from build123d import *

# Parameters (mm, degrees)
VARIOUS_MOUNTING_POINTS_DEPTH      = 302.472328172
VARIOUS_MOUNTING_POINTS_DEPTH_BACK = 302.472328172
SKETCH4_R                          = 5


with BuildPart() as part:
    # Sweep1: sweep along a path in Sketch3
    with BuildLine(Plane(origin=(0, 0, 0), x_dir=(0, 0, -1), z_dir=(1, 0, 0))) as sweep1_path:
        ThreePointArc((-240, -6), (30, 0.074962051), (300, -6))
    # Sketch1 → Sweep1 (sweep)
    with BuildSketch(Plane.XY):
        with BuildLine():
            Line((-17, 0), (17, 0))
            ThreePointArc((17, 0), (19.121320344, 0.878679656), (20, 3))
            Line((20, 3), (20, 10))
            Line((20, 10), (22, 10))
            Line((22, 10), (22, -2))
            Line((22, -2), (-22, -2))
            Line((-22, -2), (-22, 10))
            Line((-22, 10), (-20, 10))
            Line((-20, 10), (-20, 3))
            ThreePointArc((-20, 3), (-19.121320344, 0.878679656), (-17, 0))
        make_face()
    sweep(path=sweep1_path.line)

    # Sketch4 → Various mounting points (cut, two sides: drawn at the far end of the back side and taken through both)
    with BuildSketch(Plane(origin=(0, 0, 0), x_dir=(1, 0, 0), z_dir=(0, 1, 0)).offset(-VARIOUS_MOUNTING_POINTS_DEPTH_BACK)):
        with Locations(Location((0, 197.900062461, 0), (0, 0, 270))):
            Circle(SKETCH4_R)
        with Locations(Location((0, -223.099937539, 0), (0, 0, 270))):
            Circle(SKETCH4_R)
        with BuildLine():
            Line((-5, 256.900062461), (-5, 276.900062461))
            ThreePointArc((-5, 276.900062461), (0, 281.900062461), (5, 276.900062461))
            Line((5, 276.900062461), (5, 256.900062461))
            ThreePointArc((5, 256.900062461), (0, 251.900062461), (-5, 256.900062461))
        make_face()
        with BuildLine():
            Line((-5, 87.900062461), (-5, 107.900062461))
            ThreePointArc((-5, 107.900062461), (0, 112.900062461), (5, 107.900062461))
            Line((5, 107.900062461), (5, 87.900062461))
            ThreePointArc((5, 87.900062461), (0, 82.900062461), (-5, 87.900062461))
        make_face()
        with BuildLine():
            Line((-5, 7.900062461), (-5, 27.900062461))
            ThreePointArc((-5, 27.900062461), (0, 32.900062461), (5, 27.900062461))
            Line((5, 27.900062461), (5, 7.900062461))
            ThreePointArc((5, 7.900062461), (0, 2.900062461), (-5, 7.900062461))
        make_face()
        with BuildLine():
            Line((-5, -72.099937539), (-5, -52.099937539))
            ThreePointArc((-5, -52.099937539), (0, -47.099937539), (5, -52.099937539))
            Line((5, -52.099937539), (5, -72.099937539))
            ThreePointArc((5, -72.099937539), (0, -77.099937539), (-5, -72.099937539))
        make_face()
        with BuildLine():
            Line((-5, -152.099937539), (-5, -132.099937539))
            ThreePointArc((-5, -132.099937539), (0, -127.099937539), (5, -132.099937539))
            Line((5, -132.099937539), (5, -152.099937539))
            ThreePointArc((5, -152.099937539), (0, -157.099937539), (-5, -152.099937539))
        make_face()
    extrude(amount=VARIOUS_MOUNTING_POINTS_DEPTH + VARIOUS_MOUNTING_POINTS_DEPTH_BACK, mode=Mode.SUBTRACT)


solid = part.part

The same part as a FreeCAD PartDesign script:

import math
import FreeCAD as App
import Part
import Sketcher

doc = App.newDocument("Part")
body = doc.addObject("PartDesign::Body", "Body")

# Sketch on XY plane
sketch1 = body.newObject("Sketcher::SketchObject", "Sketch")
sketch1.AttachmentSupport = (doc.getObject("XY_Plane"), [""])
sketch1.MapMode = "FlatFace"
sketch1.addGeometry(Part.LineSegment(App.Vector(17, 0, 0), App.Vector(-17, 0, 0)), False)
sketch1.addGeometry(Part.ArcOfCircle(Part.Circle(App.Vector(-17, 3, 0), App.Vector(0, 0, 1), 3), math.radians(180), math.radians(270)), False)
sketch1.addGeometry(Part.LineSegment(App.Vector(-20, 3, 0), App.Vector(-20, 10, 0)), False)
sketch1.addGeometry(Part.LineSegment(App.Vector(-20, 10, 0), App.Vector(-22, 10, 0)), False)
sketch1.addGeometry(Part.LineSegment(App.Vector(-22, 10, 0), App.Vector(-22, -2, 0)), False)
sketch1.addGeometry(Part.LineSegment(App.Vector(-22, -2, 0), App.Vector(22, -2, 0)), False)
sketch1.addGeometry(Part.LineSegment(App.Vector(22, -2, 0), App.Vector(22, 10, 0)), False)
sketch1.addGeometry(Part.LineSegment(App.Vector(22, 10, 0), App.Vector(20, 10, 0)), False)
sketch1.addGeometry(Part.LineSegment(App.Vector(20, 10, 0), App.Vector(20, 3, 0)), False)
sketch1.addGeometry(Part.ArcOfCircle(Part.Circle(App.Vector(17, 3, 0), App.Vector(0, 0, 1), 3), math.radians(-90), math.radians(0)), False)
sketch1.addConstraint(Sketcher.Constraint("Tangent", 0, 2, 1, 2))
sketch1.addConstraint(Sketcher.Constraint("Tangent", 1, 1, 2, 1))
sketch1.addConstraint(Sketcher.Constraint("Coincident", 2, 2, 3, 1))
sketch1.addConstraint(Sketcher.Constraint("Coincident", 3, 2, 4, 1))
sketch1.addConstraint(Sketcher.Constraint("Coincident", 4, 2, 5, 1))
sketch1.addConstraint(Sketcher.Constraint("Coincident", 5, 2, 6, 1))
sketch1.addConstraint(Sketcher.Constraint("Coincident", 6, 2, 7, 1))
sketch1.addConstraint(Sketcher.Constraint("Coincident", 7, 2, 8, 1))
sketch1.addConstraint(Sketcher.Constraint("Tangent", 8, 2, 9, 2))
sketch1.addConstraint(Sketcher.Constraint("Tangent", 9, 1, 0, 1))
sketch1.addConstraint(Sketcher.Constraint("Horizontal", 0))
sketch1.addConstraint(Sketcher.Constraint("Vertical", 2))
sketch1.addConstraint(Sketcher.Constraint("Horizontal", 3))
sketch1.addConstraint(Sketcher.Constraint("Vertical", 4))
sketch1.addConstraint(Sketcher.Constraint("Horizontal", 5))
sketch1.addConstraint(Sketcher.Constraint("Vertical", 6))
sketch1.addConstraint(Sketcher.Constraint("Horizontal", 7))
sketch1.addConstraint(Sketcher.Constraint("Vertical", 8))
sketch1.addConstraint(Sketcher.Constraint("Equal", 1, 9))
sketch1.addConstraint(Sketcher.Constraint("Symmetric", 0, 2, 9, 1, -1, 1))
sketch1.addConstraint(Sketcher.Constraint("Symmetric", 3, 2, 6, 2, -2))
sketch1.addConstraint(Sketcher.Constraint("Radius", 1, 3.0))
sketch1.addConstraint(Sketcher.Constraint("DistanceX", 0, 2, 0, 1, 34.0))
sketch1.addConstraint(Sketcher.Constraint("DistanceX", 3, 2, 3, 1, 2.0))
sketch1.addConstraint(Sketcher.Constraint("DistanceY", 2, 1, 2, 2, 7.0))
sketch1.addConstraint(Sketcher.Constraint("DistanceY", 4, 2, 4, 1, 12.0))

# Sketch on YZ plane
sketch2 = body.newObject("Sketcher::SketchObject", "Sketch001")
sketch2.AttachmentSupport = (doc.getObject("YZ_Plane"), [""])
sketch2.MapMode = "FlatFace"
sketch2.addGeometry(Part.ArcOfCircle(Part.Circle(App.Vector(-6003, -30, 0), App.Vector(0, 0, 1), 6003), math.radians(-2.58), math.radians(2.58)), False)
sketch2.addConstraint(Sketcher.Constraint("DistanceX", 0, 3, -1, 1, 6003.0))
sketch2.addConstraint(Sketcher.Constraint("DistanceY", 0, 3, -1, 1, 30.0))
sketch2.addConstraint(Sketcher.Constraint("DistanceX", 0, 1, -1, 1, 6.0))
sketch2.addConstraint(Sketcher.Constraint("DistanceY", 0, 1, -1, 1, 300.0))
sketch2.addConstraint(Sketcher.Constraint("DistanceX", 0, 2, -1, 1, 6.0))
doc.recompute()

additivepipe = body.newObject("PartDesign::AdditivePipe", "AdditivePipe")
additivepipe.Profile = sketch1
additivepipe.Spine = (sketch2, ["Edge1"])

# Sketch on XZ plane
sketch3 = body.newObject("Sketcher::SketchObject", "Sketch002")
sketch3.AttachmentSupport = (doc.getObject("XZ_Plane"), [""])
sketch3.MapMode = "FlatFace"
sketch3.addGeometry(Part.Circle(App.Vector(0, -198, 0), App.Vector(0, 0, 1), 5), False)
sketch3.addGeometry(Part.Circle(App.Vector(0, 223, 0), App.Vector(0, 0, 1), 5), False)
sketch3.addGeometry(Part.LineSegment(App.Vector(-5, -277, 0), App.Vector(-5, -257, 0)), False)
sketch3.addGeometry(Part.ArcOfCircle(Part.Circle(App.Vector(0, -257, 0), App.Vector(0, 0, 1), 5), math.radians(0), math.radians(180)), False)
sketch3.addGeometry(Part.LineSegment(App.Vector(5, -257, 0), App.Vector(5, -277, 0)), False)
sketch3.addGeometry(Part.ArcOfCircle(Part.Circle(App.Vector(0, -277, 0), App.Vector(0, 0, 1), 5), math.radians(180), math.radians(360)), False)
sketch3.addGeometry(Part.LineSegment(App.Vector(-5, -108, 0), App.Vector(-5, -88, 0)), False)
sketch3.addGeometry(Part.ArcOfCircle(Part.Circle(App.Vector(0, -88, 0), App.Vector(0, 0, 1), 5), math.radians(0), math.radians(180)), False)
sketch3.addGeometry(Part.LineSegment(App.Vector(5, -88, 0), App.Vector(5, -108, 0)), False)
sketch3.addGeometry(Part.ArcOfCircle(Part.Circle(App.Vector(0, -108, 0), App.Vector(0, 0, 1), 5), math.radians(180), math.radians(360)), False)
sketch3.addGeometry(Part.LineSegment(App.Vector(-5, -28, 0), App.Vector(-5, -8, 0)), False)
sketch3.addGeometry(Part.ArcOfCircle(Part.Circle(App.Vector(0, -8, 0), App.Vector(0, 0, 1), 5), math.radians(0), math.radians(180)), False)
sketch3.addGeometry(Part.LineSegment(App.Vector(5, -8, 0), App.Vector(5, -28, 0)), False)
sketch3.addGeometry(Part.ArcOfCircle(Part.Circle(App.Vector(0, -28, 0), App.Vector(0, 0, 1), 5), math.radians(180), math.radians(360)), False)
sketch3.addGeometry(Part.LineSegment(App.Vector(-5, 52, 0), App.Vector(-5, 72, 0)), False)
sketch3.addGeometry(Part.ArcOfCircle(Part.Circle(App.Vector(0, 72, 0), App.Vector(0, 0, 1), 5), math.radians(0), math.radians(180)), False)
sketch3.addGeometry(Part.LineSegment(App.Vector(5, 72, 0), App.Vector(5, 52, 0)), False)
sketch3.addGeometry(Part.ArcOfCircle(Part.Circle(App.Vector(0, 52, 0), App.Vector(0, 0, 1), 5), math.radians(180), math.radians(360)), False)
sketch3.addGeometry(Part.LineSegment(App.Vector(-5, 132, 0), App.Vector(-5, 152, 0)), False)
sketch3.addGeometry(Part.ArcOfCircle(Part.Circle(App.Vector(0, 152, 0), App.Vector(0, 0, 1), 5), math.radians(0), math.radians(180)), False)
sketch3.addGeometry(Part.LineSegment(App.Vector(5, 152, 0), App.Vector(5, 132, 0)), False)
sketch3.addGeometry(Part.ArcOfCircle(Part.Circle(App.Vector(0, 132, 0), App.Vector(0, 0, 1), 5), math.radians(180), math.radians(360)), False)
sketch3.addConstraint(Sketcher.Constraint("Tangent", 2, 2, 3, 2))
sketch3.addConstraint(Sketcher.Constraint("Tangent", 3, 1, 4, 1))
sketch3.addConstraint(Sketcher.Constraint("Tangent", 4, 2, 5, 2))
sketch3.addConstraint(Sketcher.Constraint("Tangent", 5, 1, 2, 1))
sketch3.addConstraint(Sketcher.Constraint("Tangent", 6, 2, 7, 2))
sketch3.addConstraint(Sketcher.Constraint("Tangent", 7, 1, 8, 1))
sketch3.addConstraint(Sketcher.Constraint("Tangent", 8, 2, 9, 2))
sketch3.addConstraint(Sketcher.Constraint("Tangent", 9, 1, 6, 1))
sketch3.addConstraint(Sketcher.Constraint("Tangent", 10, 2, 11, 2))
sketch3.addConstraint(Sketcher.Constraint("Tangent", 11, 1, 12, 1))
sketch3.addConstraint(Sketcher.Constraint("Tangent", 12, 2, 13, 2))
sketch3.addConstraint(Sketcher.Constraint("Tangent", 13, 1, 10, 1))
sketch3.addConstraint(Sketcher.Constraint("Tangent", 14, 2, 15, 2))
sketch3.addConstraint(Sketcher.Constraint("Tangent", 15, 1, 16, 1))
sketch3.addConstraint(Sketcher.Constraint("Tangent", 16, 2, 17, 2))
sketch3.addConstraint(Sketcher.Constraint("Tangent", 17, 1, 14, 1))
sketch3.addConstraint(Sketcher.Constraint("Tangent", 18, 2, 19, 2))
sketch3.addConstraint(Sketcher.Constraint("Tangent", 19, 1, 20, 1))
sketch3.addConstraint(Sketcher.Constraint("Tangent", 20, 2, 21, 2))
sketch3.addConstraint(Sketcher.Constraint("Tangent", 21, 1, 18, 1))
sketch3.addConstraint(Sketcher.Constraint("Vertical", 2))
sketch3.addConstraint(Sketcher.Constraint("Vertical", 4))
sketch3.addConstraint(Sketcher.Constraint("Vertical", 6))
sketch3.addConstraint(Sketcher.Constraint("Vertical", 8))
sketch3.addConstraint(Sketcher.Constraint("Vertical", 10))
sketch3.addConstraint(Sketcher.Constraint("Vertical", 12))
sketch3.addConstraint(Sketcher.Constraint("Vertical", 14))
sketch3.addConstraint(Sketcher.Constraint("Vertical", 16))
sketch3.addConstraint(Sketcher.Constraint("Vertical", 18))
sketch3.addConstraint(Sketcher.Constraint("Vertical", 20))
sketch3.addConstraint(Sketcher.Constraint("Equal", 0, 1))
sketch3.addConstraint(Sketcher.Constraint("Equal", 1, 3))
sketch3.addConstraint(Sketcher.Constraint("Equal", 5, 7))
sketch3.addConstraint(Sketcher.Constraint("Equal", 9, 11))
sketch3.addConstraint(Sketcher.Constraint("Equal", 13, 15))
sketch3.addConstraint(Sketcher.Constraint("Equal", 17, 19))
sketch3.addConstraint(Sketcher.Constraint("PointOnObject", 0, 3, -2))
sketch3.addConstraint(Sketcher.Constraint("PointOnObject", 1, 3, -2))
sketch3.addConstraint(Sketcher.Constraint("PointOnObject", 3, 3, -2))
sketch3.addConstraint(Sketcher.Constraint("PointOnObject", 7, 3, -2))
sketch3.addConstraint(Sketcher.Constraint("PointOnObject", 11, 3, -2))
sketch3.addConstraint(Sketcher.Constraint("PointOnObject", 15, 3, -2))
sketch3.addConstraint(Sketcher.Constraint("PointOnObject", 19, 3, -2))
sketch3.addConstraint(Sketcher.Constraint("Equal", 4, 6))
sketch3.addConstraint(Sketcher.Constraint("Equal", 8, 10))
sketch3.addConstraint(Sketcher.Constraint("Equal", 12, 14))
sketch3.addConstraint(Sketcher.Constraint("Equal", 16, 18))
sketch3.addConstraint(Sketcher.Constraint("Diameter", 0, 10.0))
sketch3.addConstraint(Sketcher.Constraint("DistanceY", 2, 1, 2, 2, 20.0))
sketch3.addConstraint(Sketcher.Constraint("DistanceY", 0, 3, 1, 3, 421.0))
sketch3.addConstraint(Sketcher.Constraint("DistanceY", 3, 3, 0, 3, 59.0))
sketch3.addConstraint(Sketcher.Constraint("DistanceY", 0, 3, 7, 3, 110.0))
sketch3.addConstraint(Sketcher.Constraint("DistanceY", 7, 3, 11, 3, 80.0))
sketch3.addConstraint(Sketcher.Constraint("DistanceY", 11, 3, 15, 3, 80.0))
sketch3.addConstraint(Sketcher.Constraint("DistanceY", 19, 3, 1, 3, 71.0))
sketch3.addConstraint(Sketcher.Constraint("DistanceY", 0, 3, -1, 1, 197.900062))
pocket1 = body.newObject("PartDesign::Pocket", "Pocket")
pocket1.Profile = sketch3
pocket1.Type = "ThroughAll"
pocket1.Midplane = True

doc.recompute()
